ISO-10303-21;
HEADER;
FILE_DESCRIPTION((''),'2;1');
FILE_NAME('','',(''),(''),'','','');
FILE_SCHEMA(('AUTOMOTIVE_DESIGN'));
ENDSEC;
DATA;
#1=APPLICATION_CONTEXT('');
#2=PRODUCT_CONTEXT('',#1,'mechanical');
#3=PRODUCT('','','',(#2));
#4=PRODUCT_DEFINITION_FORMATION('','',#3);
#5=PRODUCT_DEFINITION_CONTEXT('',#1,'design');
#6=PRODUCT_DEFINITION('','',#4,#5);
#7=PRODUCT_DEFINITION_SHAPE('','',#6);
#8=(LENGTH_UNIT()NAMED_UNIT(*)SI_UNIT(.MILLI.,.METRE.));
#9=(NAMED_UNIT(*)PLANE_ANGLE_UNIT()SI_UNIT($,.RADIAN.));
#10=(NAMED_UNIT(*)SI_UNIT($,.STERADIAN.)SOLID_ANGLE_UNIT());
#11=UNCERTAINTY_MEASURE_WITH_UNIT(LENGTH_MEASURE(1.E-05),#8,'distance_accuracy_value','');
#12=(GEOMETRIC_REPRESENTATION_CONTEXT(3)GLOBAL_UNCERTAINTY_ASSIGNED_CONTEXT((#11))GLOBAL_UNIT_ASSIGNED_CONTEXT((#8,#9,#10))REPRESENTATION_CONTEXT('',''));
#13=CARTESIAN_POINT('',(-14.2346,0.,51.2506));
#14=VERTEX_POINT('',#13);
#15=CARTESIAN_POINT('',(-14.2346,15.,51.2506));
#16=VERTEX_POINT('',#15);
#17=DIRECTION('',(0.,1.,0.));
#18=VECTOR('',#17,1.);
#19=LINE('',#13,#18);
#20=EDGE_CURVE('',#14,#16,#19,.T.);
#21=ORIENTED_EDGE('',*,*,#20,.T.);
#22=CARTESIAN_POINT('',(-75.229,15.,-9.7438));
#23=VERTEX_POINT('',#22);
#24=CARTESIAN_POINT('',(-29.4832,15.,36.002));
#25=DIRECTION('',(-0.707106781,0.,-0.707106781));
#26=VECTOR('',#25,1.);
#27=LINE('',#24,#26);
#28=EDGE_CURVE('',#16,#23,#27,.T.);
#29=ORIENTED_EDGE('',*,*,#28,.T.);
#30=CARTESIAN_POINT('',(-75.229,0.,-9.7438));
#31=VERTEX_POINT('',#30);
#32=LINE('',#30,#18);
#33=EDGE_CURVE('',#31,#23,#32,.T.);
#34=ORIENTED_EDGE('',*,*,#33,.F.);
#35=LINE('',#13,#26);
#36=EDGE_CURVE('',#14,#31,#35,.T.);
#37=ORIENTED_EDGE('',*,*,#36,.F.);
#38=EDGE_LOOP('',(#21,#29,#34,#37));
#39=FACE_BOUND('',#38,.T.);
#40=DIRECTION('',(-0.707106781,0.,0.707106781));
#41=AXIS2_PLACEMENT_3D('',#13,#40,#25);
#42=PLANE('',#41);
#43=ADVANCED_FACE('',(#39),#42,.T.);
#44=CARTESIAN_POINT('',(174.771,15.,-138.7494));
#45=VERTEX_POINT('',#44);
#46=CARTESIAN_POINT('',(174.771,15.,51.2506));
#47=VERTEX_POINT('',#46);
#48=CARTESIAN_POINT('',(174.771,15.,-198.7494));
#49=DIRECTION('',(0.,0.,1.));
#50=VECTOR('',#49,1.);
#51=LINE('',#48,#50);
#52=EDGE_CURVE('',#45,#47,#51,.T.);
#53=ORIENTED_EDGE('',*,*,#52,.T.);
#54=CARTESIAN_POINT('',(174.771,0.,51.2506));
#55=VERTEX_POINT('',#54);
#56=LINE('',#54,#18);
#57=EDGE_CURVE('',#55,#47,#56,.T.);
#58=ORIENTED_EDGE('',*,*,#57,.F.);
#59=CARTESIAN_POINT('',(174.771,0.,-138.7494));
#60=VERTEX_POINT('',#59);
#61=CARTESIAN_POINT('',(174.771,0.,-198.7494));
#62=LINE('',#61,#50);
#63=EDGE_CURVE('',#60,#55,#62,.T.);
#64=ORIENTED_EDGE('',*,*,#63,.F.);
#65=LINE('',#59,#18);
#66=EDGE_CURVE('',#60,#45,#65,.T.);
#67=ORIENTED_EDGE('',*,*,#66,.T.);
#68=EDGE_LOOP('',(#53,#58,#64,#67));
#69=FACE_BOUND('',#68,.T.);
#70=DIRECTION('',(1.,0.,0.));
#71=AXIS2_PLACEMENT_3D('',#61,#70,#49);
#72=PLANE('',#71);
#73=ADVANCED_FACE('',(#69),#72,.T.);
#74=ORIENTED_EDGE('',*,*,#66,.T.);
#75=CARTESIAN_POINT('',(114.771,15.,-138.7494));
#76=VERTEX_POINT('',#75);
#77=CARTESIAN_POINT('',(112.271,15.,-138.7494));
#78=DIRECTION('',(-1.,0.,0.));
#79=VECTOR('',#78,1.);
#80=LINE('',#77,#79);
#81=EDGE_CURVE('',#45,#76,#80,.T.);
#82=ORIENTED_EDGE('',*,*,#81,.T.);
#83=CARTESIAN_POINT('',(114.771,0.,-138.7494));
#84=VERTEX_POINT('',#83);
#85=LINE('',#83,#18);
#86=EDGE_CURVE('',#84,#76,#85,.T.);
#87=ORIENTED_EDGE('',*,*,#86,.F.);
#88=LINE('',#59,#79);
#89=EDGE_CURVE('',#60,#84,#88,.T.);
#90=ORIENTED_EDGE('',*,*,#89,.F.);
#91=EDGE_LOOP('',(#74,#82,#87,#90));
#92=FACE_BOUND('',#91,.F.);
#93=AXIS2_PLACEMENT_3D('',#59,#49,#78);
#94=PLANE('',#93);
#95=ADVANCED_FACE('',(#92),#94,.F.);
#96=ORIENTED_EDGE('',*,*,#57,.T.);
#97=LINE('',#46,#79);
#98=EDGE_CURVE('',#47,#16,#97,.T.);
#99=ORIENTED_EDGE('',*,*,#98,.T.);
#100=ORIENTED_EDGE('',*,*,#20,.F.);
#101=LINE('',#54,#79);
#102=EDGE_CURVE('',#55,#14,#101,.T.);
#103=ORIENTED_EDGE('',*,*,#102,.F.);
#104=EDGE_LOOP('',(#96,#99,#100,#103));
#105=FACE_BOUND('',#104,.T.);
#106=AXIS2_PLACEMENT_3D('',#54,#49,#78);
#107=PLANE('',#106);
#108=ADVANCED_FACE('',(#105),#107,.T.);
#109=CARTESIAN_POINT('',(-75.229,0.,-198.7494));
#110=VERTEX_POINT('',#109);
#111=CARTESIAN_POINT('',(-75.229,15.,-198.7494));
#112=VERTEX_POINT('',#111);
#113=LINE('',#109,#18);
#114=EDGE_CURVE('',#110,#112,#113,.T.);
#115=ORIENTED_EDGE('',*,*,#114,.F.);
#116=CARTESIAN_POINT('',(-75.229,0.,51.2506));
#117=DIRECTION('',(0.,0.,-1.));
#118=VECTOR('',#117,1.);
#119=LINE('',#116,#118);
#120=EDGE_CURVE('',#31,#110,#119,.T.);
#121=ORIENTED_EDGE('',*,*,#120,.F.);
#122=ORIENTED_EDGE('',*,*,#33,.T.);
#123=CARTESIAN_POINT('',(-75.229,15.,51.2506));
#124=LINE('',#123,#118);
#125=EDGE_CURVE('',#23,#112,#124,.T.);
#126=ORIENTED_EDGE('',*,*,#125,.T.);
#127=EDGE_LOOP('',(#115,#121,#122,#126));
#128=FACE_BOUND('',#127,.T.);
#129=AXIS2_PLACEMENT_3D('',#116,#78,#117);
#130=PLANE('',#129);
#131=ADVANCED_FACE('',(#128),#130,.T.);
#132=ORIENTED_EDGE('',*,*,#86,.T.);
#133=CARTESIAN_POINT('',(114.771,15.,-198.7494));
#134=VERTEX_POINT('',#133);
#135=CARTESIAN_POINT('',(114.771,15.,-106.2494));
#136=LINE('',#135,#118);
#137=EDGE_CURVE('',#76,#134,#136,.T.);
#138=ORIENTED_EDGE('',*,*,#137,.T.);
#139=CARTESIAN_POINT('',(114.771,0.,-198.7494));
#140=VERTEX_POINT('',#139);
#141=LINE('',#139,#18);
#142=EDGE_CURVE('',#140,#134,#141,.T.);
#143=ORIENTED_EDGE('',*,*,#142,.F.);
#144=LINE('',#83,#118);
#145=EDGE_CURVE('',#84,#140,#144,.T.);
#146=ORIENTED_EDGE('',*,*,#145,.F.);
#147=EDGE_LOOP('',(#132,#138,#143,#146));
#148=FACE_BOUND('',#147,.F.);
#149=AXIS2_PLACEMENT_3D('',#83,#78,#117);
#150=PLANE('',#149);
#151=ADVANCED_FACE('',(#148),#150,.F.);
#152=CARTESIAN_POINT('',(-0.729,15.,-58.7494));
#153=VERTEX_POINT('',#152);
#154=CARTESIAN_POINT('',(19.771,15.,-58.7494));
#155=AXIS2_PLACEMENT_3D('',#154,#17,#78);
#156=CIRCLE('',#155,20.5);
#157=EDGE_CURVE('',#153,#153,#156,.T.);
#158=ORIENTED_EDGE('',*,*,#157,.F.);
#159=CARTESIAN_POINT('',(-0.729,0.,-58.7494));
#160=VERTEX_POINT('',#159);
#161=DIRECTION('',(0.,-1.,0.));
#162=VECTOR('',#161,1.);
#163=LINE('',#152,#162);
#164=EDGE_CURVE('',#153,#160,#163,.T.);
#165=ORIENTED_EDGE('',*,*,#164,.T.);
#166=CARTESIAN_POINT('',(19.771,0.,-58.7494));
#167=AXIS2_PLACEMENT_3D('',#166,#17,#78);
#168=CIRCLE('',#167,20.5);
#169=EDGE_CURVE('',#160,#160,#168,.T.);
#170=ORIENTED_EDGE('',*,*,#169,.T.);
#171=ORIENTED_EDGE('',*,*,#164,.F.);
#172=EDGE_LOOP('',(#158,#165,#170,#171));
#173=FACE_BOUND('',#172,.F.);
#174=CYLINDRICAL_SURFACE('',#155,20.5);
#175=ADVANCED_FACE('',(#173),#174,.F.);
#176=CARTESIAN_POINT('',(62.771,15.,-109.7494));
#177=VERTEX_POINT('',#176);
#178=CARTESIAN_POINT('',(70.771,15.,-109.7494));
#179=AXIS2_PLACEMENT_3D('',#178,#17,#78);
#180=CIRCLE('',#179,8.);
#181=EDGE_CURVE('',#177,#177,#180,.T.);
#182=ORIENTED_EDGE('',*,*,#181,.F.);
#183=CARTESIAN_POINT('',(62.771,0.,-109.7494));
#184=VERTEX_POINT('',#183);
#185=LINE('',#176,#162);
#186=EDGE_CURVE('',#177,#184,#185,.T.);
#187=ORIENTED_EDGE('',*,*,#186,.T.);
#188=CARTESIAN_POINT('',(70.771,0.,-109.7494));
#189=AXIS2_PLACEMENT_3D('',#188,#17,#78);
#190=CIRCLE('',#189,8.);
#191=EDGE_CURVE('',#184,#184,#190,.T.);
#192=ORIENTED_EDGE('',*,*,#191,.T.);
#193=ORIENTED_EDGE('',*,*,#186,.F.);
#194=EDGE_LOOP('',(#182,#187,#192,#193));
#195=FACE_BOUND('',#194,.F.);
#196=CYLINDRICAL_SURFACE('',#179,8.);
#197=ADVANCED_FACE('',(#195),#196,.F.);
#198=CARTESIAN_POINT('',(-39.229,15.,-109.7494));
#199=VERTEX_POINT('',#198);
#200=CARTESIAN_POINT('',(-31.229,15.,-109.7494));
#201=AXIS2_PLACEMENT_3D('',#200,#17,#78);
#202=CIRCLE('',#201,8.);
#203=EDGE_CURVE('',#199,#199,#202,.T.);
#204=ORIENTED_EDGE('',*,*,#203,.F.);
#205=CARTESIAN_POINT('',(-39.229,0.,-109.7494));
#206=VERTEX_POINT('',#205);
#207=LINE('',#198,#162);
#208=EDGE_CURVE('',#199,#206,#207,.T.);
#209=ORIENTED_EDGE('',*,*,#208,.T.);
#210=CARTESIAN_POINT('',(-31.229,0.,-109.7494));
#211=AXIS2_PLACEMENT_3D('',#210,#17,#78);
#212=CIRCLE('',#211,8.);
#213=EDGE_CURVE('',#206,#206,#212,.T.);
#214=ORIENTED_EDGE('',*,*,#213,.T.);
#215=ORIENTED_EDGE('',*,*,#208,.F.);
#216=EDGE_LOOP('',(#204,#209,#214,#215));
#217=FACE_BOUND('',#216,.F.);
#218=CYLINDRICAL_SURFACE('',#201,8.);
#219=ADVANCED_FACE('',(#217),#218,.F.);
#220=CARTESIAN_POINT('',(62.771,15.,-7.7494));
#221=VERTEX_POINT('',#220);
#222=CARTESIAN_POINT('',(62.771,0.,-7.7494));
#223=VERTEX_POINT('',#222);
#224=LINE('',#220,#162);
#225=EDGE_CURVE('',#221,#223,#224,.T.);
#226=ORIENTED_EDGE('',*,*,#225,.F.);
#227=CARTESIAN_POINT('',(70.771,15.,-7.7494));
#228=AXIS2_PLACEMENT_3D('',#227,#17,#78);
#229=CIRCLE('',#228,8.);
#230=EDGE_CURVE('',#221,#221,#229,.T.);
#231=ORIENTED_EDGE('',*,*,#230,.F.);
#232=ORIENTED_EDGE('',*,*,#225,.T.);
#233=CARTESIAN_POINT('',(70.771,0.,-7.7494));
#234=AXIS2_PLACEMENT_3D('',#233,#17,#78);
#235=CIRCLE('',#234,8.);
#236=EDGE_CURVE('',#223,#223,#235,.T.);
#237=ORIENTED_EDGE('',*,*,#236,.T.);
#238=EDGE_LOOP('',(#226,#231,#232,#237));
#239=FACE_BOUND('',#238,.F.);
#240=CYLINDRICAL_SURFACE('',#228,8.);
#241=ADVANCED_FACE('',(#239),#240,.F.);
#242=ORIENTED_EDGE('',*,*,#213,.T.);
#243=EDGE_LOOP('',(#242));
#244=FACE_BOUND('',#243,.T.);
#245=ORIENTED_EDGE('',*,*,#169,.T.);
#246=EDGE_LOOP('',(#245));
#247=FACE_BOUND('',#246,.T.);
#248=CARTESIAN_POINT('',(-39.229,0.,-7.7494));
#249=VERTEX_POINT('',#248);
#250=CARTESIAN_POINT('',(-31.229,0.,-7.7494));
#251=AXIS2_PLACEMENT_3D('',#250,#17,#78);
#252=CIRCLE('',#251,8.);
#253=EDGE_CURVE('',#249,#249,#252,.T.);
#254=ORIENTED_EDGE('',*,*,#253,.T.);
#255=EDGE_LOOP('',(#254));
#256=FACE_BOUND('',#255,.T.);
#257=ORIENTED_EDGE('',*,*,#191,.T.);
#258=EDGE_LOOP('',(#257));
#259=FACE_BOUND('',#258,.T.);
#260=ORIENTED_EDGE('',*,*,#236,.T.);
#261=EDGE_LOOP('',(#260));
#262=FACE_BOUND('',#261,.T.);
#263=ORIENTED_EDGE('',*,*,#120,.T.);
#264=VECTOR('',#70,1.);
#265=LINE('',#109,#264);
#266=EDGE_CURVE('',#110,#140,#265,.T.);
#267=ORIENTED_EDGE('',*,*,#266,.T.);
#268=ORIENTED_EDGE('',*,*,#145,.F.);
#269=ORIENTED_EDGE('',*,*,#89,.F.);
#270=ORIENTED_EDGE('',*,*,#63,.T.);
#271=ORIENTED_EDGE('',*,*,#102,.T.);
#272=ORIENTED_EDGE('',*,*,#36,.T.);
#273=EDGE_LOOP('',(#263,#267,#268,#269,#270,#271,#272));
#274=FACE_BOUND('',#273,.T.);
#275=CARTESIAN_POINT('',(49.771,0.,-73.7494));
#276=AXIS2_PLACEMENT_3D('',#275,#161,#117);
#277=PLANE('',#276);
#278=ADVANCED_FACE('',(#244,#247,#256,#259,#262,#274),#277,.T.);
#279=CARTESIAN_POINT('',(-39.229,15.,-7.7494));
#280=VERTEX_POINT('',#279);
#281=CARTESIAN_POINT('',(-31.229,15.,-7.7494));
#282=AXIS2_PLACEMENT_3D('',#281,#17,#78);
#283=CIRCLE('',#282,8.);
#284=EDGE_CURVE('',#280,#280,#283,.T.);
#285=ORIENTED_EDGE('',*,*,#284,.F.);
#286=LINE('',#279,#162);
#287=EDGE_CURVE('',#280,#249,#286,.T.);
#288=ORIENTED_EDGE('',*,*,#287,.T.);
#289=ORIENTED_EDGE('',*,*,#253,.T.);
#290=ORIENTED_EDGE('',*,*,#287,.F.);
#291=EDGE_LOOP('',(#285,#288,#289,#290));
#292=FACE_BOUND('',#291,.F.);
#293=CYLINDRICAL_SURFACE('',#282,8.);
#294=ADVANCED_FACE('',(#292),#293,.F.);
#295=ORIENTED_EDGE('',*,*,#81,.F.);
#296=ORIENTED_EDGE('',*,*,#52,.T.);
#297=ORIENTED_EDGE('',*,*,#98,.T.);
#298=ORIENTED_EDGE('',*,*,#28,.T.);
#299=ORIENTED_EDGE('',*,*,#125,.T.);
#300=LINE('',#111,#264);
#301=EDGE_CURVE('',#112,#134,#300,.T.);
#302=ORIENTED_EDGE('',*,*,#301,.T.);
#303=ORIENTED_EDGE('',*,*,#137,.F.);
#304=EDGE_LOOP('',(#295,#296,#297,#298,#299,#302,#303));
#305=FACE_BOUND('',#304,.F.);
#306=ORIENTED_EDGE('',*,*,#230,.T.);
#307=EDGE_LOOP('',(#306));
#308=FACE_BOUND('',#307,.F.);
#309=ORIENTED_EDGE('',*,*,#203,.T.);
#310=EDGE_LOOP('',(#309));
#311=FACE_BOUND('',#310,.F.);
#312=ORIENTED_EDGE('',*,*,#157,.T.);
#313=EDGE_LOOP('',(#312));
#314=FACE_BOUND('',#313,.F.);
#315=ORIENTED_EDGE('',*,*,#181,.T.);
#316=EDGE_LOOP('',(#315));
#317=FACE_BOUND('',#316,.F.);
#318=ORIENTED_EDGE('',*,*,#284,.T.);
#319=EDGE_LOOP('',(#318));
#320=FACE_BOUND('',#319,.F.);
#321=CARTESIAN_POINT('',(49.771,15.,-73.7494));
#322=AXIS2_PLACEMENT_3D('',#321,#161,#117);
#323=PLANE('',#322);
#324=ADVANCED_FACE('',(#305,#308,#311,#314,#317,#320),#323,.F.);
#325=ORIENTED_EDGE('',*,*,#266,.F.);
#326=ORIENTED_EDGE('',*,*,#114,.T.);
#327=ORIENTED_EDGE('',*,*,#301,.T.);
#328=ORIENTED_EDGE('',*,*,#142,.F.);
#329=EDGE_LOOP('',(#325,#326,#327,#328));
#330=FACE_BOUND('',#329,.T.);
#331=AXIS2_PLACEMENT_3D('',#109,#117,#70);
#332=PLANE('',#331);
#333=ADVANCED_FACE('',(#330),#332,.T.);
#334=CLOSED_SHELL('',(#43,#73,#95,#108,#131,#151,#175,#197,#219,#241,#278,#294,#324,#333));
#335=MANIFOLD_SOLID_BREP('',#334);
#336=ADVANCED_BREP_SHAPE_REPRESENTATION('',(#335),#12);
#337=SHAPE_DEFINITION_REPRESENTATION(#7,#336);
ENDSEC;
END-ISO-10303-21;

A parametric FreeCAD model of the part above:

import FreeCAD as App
import Part
import Sketcher

V = App.Vector

doc = App.newDocument("Part")
body = doc.addObject("PartDesign::Body", "Body")

sketch1 = doc.addObject("Sketcher::SketchObject", "Sketch")
body.addObject(sketch1)
sketch1.AttachmentSupport = (doc.XZ_Plane, [""])
sketch1.MapMode = "FlatFace"
sketch1.addGeometry([
    Part.LineSegment(V(-75, 51, 0), V(-75, -199, 0)),
    Part.LineSegment(V(-75, -199, 0), V(175, -199, 0)),
    Part.LineSegment(V(175, -199, 0), V(175, 51, 0)),
    Part.LineSegment(V(175, 51, 0), V(-75, 51, 0)),
], False)
sketch1.addConstraint([
    Sketcher.Constraint("Coincident", 0, 2, 1, 1),
    Sketcher.Constraint("Coincident", 1, 2, 2, 1),
    Sketcher.Constraint("Coincident", 2, 2, 3, 1),
    Sketcher.Constraint("Coincident", 3, 2, 0, 1),
    Sketcher.Constraint("Vertical", 0),
    Sketcher.Constraint("Horizontal", 1),
    Sketcher.Constraint("Vertical", 2),
    Sketcher.Constraint("Horizontal", 3),
    Sketcher.Constraint("Equal", 3, 0),
    Sketcher.Constraint("DistanceX", 1, 1, 1, 2, 250.0),
    Sketcher.Constraint("DistanceX", 0, 2, -1, 1, 75.229),
    Sketcher.Constraint("DistanceY", 0, 2, -1, 1, 198.7494),
])
pad1 = doc.addObject("PartDesign::Pad", "Pad")
body.addObject(pad1)
pad1.Profile = sketch1
pad1.Length = 15
pad1.Reversed = True

sketch2 = doc.addObject("Sketcher::SketchObject", "Sketch001")
body.addObject(sketch2)
sketch2.AttachmentSupport = (doc.XZ_Plane, [""])
sketch2.MapMode = "FlatFace"
sketch2.AttachmentOffset = App.Placement(V(0, 0, -15), App.Rotation())
sketch2.addGeometry([
    Part.Circle(V(-31, -110, 0), V(0, 0, 1), 8),
    Part.Circle(V(-31, -8, 0), V(0, 0, 1), 8),
    Part.Circle(V(71, -110, 0), V(0, 0, 1), 8),
    Part.Circle(V(20, -59, 0), V(0, 0, 1), 20),
    Part.Circle(V(71, -8, 0), V(0, 0, 1), 8),
], False)
sketch2.addConstraint([
    Sketcher.Constraint("Equal", 0, 1),
    Sketcher.Constraint("Equal", 1, 2),
    Sketcher.Constraint("Equal", 2, 4),
    Sketcher.Constraint("Horizontal", 0, 3, 2, 3),
    Sketcher.Constraint("Horizontal", 1, 3, 4, 3),
    Sketcher.Constraint("Vertical", 0, 3, 1, 3),
    Sketcher.Constraint("Vertical", 2, 3, 4, 3),
    Sketcher.Constraint("Diameter", 0, 16.0),
    Sketcher.Constraint("Diameter", 3, 41.0),
    Sketcher.Constraint("DistanceY", 0, 3, 1, 3, 102.0),
    Sketcher.Constraint("DistanceX", 0, 3, 2, 3, 102.0),
    Sketcher.Constraint("DistanceX", 0, 3, 3, 3, 51.0),
    Sketcher.Constraint("DistanceY", 0, 3, 3, 3, 51.0),
    Sketcher.Constraint("DistanceX", 0, 3, -1, 1, 31.229),
    Sketcher.Constraint("DistanceY", 0, 3, -1, 1, 109.7494),
])
pocket1 = doc.addObject("PartDesign::Pocket", "Pocket")
body.addObject(pocket1)
pocket1.Profile = sketch2
pocket1.Type = "ThroughAll"
pocket1.Reversed = True

sketch3 = doc.addObject("Sketcher::SketchObject", "Sketch002")
body.addObject(sketch3)
sketch3.AttachmentSupport = (doc.XZ_Plane, [""])
sketch3.MapMode = "FlatFace"
sketch3.addGeometry([
    Part.LineSegment(V(-75, -10, 0), V(-14, 51, 0)),
    Part.LineSegment(V(-14, 51, 0), V(-75, 51, 0)),
    Part.LineSegment(V(-75, 51, 0), V(-75, -10, 0)),
    Part.LineSegment(V(175, -199, 0), V(175, -139, 0)),
    Part.LineSegment(V(175, -139, 0), V(115, -139, 0)),
    Part.LineSegment(V(115, -139, 0), V(115, -199, 0)),
    Part.LineSegment(V(115, -199, 0), V(175, -199, 0)),
], False)
sketch3.addConstraint([
    Sketcher.Constraint("Coincident", 0, 2, 1, 1),
    Sketcher.Constraint("Coincident", 1, 2, 2, 1),
    Sketcher.Constraint("Coincident", 2, 2, 0, 1),
    Sketcher.Constraint("Coincident", 3, 2, 4, 1),
    Sketcher.Constraint("Coincident", 4, 2, 5, 1),
    Sketcher.Constraint("Coincident", 5, 2, 6, 1),
    Sketcher.Constraint("Coincident", 6, 2, 3, 1),
    Sketcher.Constraint("Horizontal", 1),
    Sketcher.Constraint("Vertical", 2),
    Sketcher.Constraint("Vertical", 3),
    Sketcher.Constraint("Horizontal", 4),
    Sketcher.Constraint("Vertical", 5),
    Sketcher.Constraint("Horizontal", 6),
    Sketcher.Constraint("Equal", 1, 2),
    Sketcher.Constraint("Equal", 6, 3),
    Sketcher.Constraint("DistanceX", 4, 2, 4, 1, 60.0),
    Sketcher.Constraint("DistanceY", 3, 2, 0, 2, 190.0),
    Sketcher.Constraint("DistanceX", 2, 2, 3, 2, 250.0),
    Sketcher.Constraint("Distance", 0, 86.259),
    Sketcher.Constraint("DistanceX", 1, 2, -1, 1, 75.229),
    Sketcher.Constraint("DistanceY", -1, 1, 0, 2, 51.2506),
])
pocket2 = doc.addObject("PartDesign::Pocket", "Pocket001")
body.addObject(pocket2)
pocket2.Profile = sketch3
pocket2.Type = "ThroughAll"

doc.recompute()
